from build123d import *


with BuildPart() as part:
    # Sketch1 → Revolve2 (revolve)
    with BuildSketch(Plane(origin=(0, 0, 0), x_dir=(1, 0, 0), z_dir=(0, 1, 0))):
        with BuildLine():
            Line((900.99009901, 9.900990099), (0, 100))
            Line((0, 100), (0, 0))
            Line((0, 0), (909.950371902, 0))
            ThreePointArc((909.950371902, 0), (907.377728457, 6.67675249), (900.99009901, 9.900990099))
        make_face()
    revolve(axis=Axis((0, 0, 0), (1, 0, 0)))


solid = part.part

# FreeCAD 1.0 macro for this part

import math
import FreeCAD as App
import Part
import Sketcher
from FreeCAD import Vector
Q = App.Units.Quantity

doc = App.newDocument("Part")
body = doc.addObject("PartDesign::Body", "Body")

sketch1 = body.newObject("Sketcher::SketchObject", "Sketch")
sketch1.AttachmentSupport = (doc.getObject("XZ_Plane"), [""])
sketch1.MapMode = "FlatFace"
sketch1.addGeometry(Part.LineSegment(Vector(900.990099, -9.90099, 0), Vector(0, -100, 0)), False)
sketch1.addGeometry(Part.LineSegment(Vector(0, -100, 0), Vector(0, 0, 0)), False)
sketch1.addGeometry(Part.LineSegment(Vector(0, 0, 0), Vector(909.950372, 0, 0)), False)
sketch1.addGeometry(Part.ArcOfCircle(Part.Circle(Vector(900, 0, 0), Vector(0, 0, 1), 9.950372), math.radians(-84.289407), math.radians(0)), False)
sketch1.addConstraint(Sketcher.Constraint("Coincident", 0, 2, 1, 1))
sketch1.addConstraint(Sketcher.Constraint("Coincident", 1, 2, 2, 1))
sketch1.addConstraint(Sketcher.Constraint("Coincident", 2, 2, 3, 2))
sketch1.addConstraint(Sketcher.Constraint("Tangent", 3, 1, 0, 1))
sketch1.addConstraint(Sketcher.Constraint("Vertical", 1))
sketch1.addConstraint(Sketcher.Constraint("Horizontal", 2))
sketch1.addConstraint(Sketcher.Constraint("Coincident", 1, 2, -1, 1))
sketch1.addConstraint(Sketcher.Constraint("PointOnObject", 3, 3, -1))
sketch1.addConstraint(Sketcher.Constraint("DistanceY", 1, 1, 1, 2, Q("100 mm")))
sketch1.addConstraint(Sketcher.Constraint("DistanceX", -1, 1, 3, 3, Q("900 mm")))
sketch1.addConstraint(Sketcher.Constraint("Radius", 3, Q("9.950372 mm")))
revolution = body.newObject("PartDesign::Revolution", "Revolution")
revolution.Profile = sketch1
revolution.ReferenceAxis = (sketch1, ["H_Axis"])
revolution.Angle = 360

doc.recompute()
